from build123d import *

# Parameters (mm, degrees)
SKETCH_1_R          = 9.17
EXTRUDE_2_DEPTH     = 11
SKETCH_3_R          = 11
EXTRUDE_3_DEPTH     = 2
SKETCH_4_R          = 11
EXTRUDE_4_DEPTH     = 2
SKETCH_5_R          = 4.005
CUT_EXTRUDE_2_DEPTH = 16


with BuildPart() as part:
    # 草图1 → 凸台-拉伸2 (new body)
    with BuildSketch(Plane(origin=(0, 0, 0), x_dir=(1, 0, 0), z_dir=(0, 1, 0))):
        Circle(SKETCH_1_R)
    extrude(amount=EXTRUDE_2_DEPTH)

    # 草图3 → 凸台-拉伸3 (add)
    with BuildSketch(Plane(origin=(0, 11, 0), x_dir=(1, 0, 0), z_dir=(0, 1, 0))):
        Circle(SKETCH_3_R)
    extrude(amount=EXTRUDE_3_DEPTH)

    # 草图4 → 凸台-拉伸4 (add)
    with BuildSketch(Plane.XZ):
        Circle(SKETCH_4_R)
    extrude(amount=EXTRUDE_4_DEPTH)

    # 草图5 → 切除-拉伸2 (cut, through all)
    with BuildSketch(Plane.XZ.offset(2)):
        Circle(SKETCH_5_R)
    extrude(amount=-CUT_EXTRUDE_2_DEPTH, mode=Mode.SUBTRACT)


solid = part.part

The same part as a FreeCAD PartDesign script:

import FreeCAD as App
import Part
import Sketcher
from FreeCAD import Vector

doc = App.newDocument("Part")
params = doc.addObject("Spreadsheet::Sheet", "Params")
for row, (alias, value) in enumerate([
    ("sketch1_diameter", "18.34 mm"),
    ("pad1_length", "11 mm"),
    ("sketch2_diameter", "22 mm"),
    ("pad2_length", "2 mm"),
    ("sketch3_diameter", "22 mm"),
    ("pad3_length", "2 mm"),
    ("sketch4_diameter", "8.01 mm"),
], start=1):
    params.set(f"A{row}", alias)
    params.set(f"B{row}", "=" + value)
    params.setAlias(f"B{row}", alias)

body = doc.addObject("PartDesign::Body", "Body")

# Sketch on XZ plane
sketch1 = body.newObject("Sketcher::SketchObject", "Sketch")
sketch1.AttachmentSupport = (doc.getObject("XZ_Plane"), [""])
sketch1.MapMode = "FlatFace"
sketch1.addGeometry(Part.Circle(Vector(0, 0, 0), Vector(0, 0, 1), 9.17), False)
sketch1.addConstraint([
    Sketcher.Constraint("Coincident", 0, 3, -1, 1),
    Sketcher.Constraint("Diameter", 0, 18.34),
])
sketch1.setExpression("Constraints[1]", "Params.sketch1_diameter")
pad1 = body.newObject("PartDesign::Pad", "Pad")
pad1.Profile = sketch1
pad1.setExpression("Length", "Params.pad1_length")
pad1.Reversed = True

# Sketch on XZ plane
sketch2 = body.newObject("Sketcher::SketchObject", "Sketch001")
sketch2.AttachmentSupport = (doc.getObject("XZ_Plane"), [""])
sketch2.MapMode = "FlatFace"
sketch2.AttachmentOffset = App.Placement(Vector(0, 0, -11), App.Rotation())
sketch2.addGeometry(Part.Circle(Vector(0, 0, 0), Vector(0, 0, 1), 11), False)
sketch2.addConstraint([
    Sketcher.Constraint("Coincident", 0, 3, -1, 1),
    Sketcher.Constraint("Diameter", 0, 22.0),
])
sketch2.setExpression("Constraints[1]", "Params.sketch2_diameter")
pad2 = body.newObject("PartDesign::Pad", "Pad001")
pad2.Profile = sketch2
pad2.setExpression("Length", "Params.pad2_length")
pad2.Reversed = True

# Sketch on XZ plane
sketch3 = body.newObject("Sketcher::SketchObject", "Sketch002")
sketch3.AttachmentSupport = (doc.getObject("XZ_Plane"), [""])
sketch3.MapMode = "FlatFace"
sketch3.addGeometry(Part.Circle(Vector(0, 0, 0), Vector(0, 0, 1), 11), False)
sketch3.addConstraint([
    Sketcher.Constraint("Coincident", 0, 3, -1, 1),
    Sketcher.Constraint("Diameter", 0, 22.0),
])
sketch3.setExpression("Constraints[1]", "Params.sketch3_diameter")
pad3 = body.newObject("PartDesign::Pad", "Pad002")
pad3.Profile = sketch3
pad3.setExpression("Length", "Params.pad3_length")

# Sketch on XZ plane
sketch4 = body.newObject("Sketcher::SketchObject", "Sketch003")
sketch4.AttachmentSupport = (doc.getObject("XZ_Plane"), [""])
sketch4.MapMode = "FlatFace"
sketch4.AttachmentOffset = App.Placement(Vector(0, 0, 2), App.Rotation())
sketch4.addGeometry(Part.Circle(Vector(0, 0, 0), Vector(0, 0, 1), 4.005), False)
sketch4.addConstraint([
    Sketcher.Constraint("Coincident", 0, 3, -1, 1),
    Sketcher.Constraint("Diameter", 0, 8.01),
])
sketch4.setExpression("Constraints[1]", "Params.sketch4_diameter")
pocket1 = body.newObject("PartDesign::Pocket", "Pocket")
pocket1.Profile = sketch4
pocket1.Type = "ThroughAll"

doc.recompute()
